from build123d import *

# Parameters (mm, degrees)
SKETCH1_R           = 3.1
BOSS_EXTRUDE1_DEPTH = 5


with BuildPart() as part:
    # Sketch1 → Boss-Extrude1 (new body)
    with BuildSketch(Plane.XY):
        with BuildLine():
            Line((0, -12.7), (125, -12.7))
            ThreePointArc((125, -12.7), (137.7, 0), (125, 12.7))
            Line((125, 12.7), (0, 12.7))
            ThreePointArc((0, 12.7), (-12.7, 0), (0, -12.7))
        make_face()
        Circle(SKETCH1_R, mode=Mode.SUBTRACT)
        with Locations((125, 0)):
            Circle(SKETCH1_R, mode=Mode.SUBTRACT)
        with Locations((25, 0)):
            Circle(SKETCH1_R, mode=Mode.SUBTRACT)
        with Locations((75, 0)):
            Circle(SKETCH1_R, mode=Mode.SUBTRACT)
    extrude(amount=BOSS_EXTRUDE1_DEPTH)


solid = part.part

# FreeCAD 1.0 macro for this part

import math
import FreeCAD as App
import Part
import Sketcher

V = App.Vector
Q = App.Units.Quantity

doc = App.newDocument("Part")
body = doc.addObject("PartDesign::Body", "Body")

sketch1 = body.newObject("Sketcher::SketchObject", "Sketch")
sketch1.AttachmentSupport = (doc.getObject("XY_Plane"), [""])
sketch1.MapMode = "FlatFace"
sketch1.addGeometry(Part.LineSegment(V(0, -12.7, 0), V(125, -12.7, 0)), False)
sketch1.addGeometry(Part.ArcOfCircle(Part.Circle(V(125, 0, 0), V(0, 0, 1), 12.7), math.radians(-90), math.radians(90)), False)
sketch1.addGeometry(Part.LineSegment(V(125, 12.7, 0), V(0, 12.7, 0)), False)
sketch1.addGeometry(Part.ArcOfCircle(Part.Circle(V(0, 0, 0), V(0, 0, 1), 12.7), math.radians(90), math.radians(270)), False)
sketch1.addGeometry(Part.Circle(V(0, 0, 0), V(0, 0, 1), 3.1), False)
sketch1.addGeometry(Part.Circle(V(25, 0, 0), V(0, 0, 1), 3.1), False)
sketch1.addGeometry(Part.Circle(V(75, 0, 0), V(0, 0, 1), 3.1), False)
sketch1.addGeometry(Part.Circle(V(125, 0, 0), V(0, 0, 1), 3.1), False)
sketch1.addConstraint(Sketcher.Constraint("Tangent", 0, 2, 1, 1))
sketch1.addConstraint(Sketcher.Constraint("Tangent", 1, 2, 2, 1))
sketch1.addConstraint(Sketcher.Constraint("Tangent", 2, 2, 3, 1))
sketch1.addConstraint(Sketcher.Constraint("Tangent", 3, 2, 0, 1))
sketch1.addConstraint(Sketcher.Constraint("Horizontal", 0))
sketch1.addConstraint(Sketcher.Constraint("Horizontal", 2))
sketch1.addConstraint(Sketcher.Constraint("Coincident", 3, 3, -1, 1))
sketch1.addConstraint(Sketcher.Constraint("Coincident", 4, 3, -1, 1))
sketch1.addConstraint(Sketcher.Constraint("Coincident", 7, 3, 1, 3))
sketch1.addConstraint(Sketcher.Constraint("Equal", 4, 5))
sketch1.addConstraint(Sketcher.Constraint("Equal", 5, 6))
sketch1.addConstraint(Sketcher.Constraint("Equal", 6, 7))
sketch1.addConstraint(Sketcher.Constraint("PointOnObject", 5, 3, -1))
sketch1.addConstraint(Sketcher.Constraint("PointOnObject", 6, 3, -1))
sketch1.addConstraint(Sketcher.Constraint("Diameter", 4, Q("6.2 mm")))
sketch1.addConstraint(Sketcher.Constraint("Radius", 1, Q("12.7 mm")))
sketch1.addConstraint(Sketcher.Constraint("DistanceX", 0, 1, 0, 2, Q("125 mm")))
sketch1.addConstraint(Sketcher.Constraint("DistanceX", -1, 1, 5, 3, Q("25 mm")))
sketch1.addConstraint(Sketcher.Constraint("DistanceX", -1, 1, 6, 3, Q("75 mm")))
pad1 = body.newObject("PartDesign::Pad", "Pad")
pad1.Profile = sketch1
pad1.Length = 5

doc.recompute()
